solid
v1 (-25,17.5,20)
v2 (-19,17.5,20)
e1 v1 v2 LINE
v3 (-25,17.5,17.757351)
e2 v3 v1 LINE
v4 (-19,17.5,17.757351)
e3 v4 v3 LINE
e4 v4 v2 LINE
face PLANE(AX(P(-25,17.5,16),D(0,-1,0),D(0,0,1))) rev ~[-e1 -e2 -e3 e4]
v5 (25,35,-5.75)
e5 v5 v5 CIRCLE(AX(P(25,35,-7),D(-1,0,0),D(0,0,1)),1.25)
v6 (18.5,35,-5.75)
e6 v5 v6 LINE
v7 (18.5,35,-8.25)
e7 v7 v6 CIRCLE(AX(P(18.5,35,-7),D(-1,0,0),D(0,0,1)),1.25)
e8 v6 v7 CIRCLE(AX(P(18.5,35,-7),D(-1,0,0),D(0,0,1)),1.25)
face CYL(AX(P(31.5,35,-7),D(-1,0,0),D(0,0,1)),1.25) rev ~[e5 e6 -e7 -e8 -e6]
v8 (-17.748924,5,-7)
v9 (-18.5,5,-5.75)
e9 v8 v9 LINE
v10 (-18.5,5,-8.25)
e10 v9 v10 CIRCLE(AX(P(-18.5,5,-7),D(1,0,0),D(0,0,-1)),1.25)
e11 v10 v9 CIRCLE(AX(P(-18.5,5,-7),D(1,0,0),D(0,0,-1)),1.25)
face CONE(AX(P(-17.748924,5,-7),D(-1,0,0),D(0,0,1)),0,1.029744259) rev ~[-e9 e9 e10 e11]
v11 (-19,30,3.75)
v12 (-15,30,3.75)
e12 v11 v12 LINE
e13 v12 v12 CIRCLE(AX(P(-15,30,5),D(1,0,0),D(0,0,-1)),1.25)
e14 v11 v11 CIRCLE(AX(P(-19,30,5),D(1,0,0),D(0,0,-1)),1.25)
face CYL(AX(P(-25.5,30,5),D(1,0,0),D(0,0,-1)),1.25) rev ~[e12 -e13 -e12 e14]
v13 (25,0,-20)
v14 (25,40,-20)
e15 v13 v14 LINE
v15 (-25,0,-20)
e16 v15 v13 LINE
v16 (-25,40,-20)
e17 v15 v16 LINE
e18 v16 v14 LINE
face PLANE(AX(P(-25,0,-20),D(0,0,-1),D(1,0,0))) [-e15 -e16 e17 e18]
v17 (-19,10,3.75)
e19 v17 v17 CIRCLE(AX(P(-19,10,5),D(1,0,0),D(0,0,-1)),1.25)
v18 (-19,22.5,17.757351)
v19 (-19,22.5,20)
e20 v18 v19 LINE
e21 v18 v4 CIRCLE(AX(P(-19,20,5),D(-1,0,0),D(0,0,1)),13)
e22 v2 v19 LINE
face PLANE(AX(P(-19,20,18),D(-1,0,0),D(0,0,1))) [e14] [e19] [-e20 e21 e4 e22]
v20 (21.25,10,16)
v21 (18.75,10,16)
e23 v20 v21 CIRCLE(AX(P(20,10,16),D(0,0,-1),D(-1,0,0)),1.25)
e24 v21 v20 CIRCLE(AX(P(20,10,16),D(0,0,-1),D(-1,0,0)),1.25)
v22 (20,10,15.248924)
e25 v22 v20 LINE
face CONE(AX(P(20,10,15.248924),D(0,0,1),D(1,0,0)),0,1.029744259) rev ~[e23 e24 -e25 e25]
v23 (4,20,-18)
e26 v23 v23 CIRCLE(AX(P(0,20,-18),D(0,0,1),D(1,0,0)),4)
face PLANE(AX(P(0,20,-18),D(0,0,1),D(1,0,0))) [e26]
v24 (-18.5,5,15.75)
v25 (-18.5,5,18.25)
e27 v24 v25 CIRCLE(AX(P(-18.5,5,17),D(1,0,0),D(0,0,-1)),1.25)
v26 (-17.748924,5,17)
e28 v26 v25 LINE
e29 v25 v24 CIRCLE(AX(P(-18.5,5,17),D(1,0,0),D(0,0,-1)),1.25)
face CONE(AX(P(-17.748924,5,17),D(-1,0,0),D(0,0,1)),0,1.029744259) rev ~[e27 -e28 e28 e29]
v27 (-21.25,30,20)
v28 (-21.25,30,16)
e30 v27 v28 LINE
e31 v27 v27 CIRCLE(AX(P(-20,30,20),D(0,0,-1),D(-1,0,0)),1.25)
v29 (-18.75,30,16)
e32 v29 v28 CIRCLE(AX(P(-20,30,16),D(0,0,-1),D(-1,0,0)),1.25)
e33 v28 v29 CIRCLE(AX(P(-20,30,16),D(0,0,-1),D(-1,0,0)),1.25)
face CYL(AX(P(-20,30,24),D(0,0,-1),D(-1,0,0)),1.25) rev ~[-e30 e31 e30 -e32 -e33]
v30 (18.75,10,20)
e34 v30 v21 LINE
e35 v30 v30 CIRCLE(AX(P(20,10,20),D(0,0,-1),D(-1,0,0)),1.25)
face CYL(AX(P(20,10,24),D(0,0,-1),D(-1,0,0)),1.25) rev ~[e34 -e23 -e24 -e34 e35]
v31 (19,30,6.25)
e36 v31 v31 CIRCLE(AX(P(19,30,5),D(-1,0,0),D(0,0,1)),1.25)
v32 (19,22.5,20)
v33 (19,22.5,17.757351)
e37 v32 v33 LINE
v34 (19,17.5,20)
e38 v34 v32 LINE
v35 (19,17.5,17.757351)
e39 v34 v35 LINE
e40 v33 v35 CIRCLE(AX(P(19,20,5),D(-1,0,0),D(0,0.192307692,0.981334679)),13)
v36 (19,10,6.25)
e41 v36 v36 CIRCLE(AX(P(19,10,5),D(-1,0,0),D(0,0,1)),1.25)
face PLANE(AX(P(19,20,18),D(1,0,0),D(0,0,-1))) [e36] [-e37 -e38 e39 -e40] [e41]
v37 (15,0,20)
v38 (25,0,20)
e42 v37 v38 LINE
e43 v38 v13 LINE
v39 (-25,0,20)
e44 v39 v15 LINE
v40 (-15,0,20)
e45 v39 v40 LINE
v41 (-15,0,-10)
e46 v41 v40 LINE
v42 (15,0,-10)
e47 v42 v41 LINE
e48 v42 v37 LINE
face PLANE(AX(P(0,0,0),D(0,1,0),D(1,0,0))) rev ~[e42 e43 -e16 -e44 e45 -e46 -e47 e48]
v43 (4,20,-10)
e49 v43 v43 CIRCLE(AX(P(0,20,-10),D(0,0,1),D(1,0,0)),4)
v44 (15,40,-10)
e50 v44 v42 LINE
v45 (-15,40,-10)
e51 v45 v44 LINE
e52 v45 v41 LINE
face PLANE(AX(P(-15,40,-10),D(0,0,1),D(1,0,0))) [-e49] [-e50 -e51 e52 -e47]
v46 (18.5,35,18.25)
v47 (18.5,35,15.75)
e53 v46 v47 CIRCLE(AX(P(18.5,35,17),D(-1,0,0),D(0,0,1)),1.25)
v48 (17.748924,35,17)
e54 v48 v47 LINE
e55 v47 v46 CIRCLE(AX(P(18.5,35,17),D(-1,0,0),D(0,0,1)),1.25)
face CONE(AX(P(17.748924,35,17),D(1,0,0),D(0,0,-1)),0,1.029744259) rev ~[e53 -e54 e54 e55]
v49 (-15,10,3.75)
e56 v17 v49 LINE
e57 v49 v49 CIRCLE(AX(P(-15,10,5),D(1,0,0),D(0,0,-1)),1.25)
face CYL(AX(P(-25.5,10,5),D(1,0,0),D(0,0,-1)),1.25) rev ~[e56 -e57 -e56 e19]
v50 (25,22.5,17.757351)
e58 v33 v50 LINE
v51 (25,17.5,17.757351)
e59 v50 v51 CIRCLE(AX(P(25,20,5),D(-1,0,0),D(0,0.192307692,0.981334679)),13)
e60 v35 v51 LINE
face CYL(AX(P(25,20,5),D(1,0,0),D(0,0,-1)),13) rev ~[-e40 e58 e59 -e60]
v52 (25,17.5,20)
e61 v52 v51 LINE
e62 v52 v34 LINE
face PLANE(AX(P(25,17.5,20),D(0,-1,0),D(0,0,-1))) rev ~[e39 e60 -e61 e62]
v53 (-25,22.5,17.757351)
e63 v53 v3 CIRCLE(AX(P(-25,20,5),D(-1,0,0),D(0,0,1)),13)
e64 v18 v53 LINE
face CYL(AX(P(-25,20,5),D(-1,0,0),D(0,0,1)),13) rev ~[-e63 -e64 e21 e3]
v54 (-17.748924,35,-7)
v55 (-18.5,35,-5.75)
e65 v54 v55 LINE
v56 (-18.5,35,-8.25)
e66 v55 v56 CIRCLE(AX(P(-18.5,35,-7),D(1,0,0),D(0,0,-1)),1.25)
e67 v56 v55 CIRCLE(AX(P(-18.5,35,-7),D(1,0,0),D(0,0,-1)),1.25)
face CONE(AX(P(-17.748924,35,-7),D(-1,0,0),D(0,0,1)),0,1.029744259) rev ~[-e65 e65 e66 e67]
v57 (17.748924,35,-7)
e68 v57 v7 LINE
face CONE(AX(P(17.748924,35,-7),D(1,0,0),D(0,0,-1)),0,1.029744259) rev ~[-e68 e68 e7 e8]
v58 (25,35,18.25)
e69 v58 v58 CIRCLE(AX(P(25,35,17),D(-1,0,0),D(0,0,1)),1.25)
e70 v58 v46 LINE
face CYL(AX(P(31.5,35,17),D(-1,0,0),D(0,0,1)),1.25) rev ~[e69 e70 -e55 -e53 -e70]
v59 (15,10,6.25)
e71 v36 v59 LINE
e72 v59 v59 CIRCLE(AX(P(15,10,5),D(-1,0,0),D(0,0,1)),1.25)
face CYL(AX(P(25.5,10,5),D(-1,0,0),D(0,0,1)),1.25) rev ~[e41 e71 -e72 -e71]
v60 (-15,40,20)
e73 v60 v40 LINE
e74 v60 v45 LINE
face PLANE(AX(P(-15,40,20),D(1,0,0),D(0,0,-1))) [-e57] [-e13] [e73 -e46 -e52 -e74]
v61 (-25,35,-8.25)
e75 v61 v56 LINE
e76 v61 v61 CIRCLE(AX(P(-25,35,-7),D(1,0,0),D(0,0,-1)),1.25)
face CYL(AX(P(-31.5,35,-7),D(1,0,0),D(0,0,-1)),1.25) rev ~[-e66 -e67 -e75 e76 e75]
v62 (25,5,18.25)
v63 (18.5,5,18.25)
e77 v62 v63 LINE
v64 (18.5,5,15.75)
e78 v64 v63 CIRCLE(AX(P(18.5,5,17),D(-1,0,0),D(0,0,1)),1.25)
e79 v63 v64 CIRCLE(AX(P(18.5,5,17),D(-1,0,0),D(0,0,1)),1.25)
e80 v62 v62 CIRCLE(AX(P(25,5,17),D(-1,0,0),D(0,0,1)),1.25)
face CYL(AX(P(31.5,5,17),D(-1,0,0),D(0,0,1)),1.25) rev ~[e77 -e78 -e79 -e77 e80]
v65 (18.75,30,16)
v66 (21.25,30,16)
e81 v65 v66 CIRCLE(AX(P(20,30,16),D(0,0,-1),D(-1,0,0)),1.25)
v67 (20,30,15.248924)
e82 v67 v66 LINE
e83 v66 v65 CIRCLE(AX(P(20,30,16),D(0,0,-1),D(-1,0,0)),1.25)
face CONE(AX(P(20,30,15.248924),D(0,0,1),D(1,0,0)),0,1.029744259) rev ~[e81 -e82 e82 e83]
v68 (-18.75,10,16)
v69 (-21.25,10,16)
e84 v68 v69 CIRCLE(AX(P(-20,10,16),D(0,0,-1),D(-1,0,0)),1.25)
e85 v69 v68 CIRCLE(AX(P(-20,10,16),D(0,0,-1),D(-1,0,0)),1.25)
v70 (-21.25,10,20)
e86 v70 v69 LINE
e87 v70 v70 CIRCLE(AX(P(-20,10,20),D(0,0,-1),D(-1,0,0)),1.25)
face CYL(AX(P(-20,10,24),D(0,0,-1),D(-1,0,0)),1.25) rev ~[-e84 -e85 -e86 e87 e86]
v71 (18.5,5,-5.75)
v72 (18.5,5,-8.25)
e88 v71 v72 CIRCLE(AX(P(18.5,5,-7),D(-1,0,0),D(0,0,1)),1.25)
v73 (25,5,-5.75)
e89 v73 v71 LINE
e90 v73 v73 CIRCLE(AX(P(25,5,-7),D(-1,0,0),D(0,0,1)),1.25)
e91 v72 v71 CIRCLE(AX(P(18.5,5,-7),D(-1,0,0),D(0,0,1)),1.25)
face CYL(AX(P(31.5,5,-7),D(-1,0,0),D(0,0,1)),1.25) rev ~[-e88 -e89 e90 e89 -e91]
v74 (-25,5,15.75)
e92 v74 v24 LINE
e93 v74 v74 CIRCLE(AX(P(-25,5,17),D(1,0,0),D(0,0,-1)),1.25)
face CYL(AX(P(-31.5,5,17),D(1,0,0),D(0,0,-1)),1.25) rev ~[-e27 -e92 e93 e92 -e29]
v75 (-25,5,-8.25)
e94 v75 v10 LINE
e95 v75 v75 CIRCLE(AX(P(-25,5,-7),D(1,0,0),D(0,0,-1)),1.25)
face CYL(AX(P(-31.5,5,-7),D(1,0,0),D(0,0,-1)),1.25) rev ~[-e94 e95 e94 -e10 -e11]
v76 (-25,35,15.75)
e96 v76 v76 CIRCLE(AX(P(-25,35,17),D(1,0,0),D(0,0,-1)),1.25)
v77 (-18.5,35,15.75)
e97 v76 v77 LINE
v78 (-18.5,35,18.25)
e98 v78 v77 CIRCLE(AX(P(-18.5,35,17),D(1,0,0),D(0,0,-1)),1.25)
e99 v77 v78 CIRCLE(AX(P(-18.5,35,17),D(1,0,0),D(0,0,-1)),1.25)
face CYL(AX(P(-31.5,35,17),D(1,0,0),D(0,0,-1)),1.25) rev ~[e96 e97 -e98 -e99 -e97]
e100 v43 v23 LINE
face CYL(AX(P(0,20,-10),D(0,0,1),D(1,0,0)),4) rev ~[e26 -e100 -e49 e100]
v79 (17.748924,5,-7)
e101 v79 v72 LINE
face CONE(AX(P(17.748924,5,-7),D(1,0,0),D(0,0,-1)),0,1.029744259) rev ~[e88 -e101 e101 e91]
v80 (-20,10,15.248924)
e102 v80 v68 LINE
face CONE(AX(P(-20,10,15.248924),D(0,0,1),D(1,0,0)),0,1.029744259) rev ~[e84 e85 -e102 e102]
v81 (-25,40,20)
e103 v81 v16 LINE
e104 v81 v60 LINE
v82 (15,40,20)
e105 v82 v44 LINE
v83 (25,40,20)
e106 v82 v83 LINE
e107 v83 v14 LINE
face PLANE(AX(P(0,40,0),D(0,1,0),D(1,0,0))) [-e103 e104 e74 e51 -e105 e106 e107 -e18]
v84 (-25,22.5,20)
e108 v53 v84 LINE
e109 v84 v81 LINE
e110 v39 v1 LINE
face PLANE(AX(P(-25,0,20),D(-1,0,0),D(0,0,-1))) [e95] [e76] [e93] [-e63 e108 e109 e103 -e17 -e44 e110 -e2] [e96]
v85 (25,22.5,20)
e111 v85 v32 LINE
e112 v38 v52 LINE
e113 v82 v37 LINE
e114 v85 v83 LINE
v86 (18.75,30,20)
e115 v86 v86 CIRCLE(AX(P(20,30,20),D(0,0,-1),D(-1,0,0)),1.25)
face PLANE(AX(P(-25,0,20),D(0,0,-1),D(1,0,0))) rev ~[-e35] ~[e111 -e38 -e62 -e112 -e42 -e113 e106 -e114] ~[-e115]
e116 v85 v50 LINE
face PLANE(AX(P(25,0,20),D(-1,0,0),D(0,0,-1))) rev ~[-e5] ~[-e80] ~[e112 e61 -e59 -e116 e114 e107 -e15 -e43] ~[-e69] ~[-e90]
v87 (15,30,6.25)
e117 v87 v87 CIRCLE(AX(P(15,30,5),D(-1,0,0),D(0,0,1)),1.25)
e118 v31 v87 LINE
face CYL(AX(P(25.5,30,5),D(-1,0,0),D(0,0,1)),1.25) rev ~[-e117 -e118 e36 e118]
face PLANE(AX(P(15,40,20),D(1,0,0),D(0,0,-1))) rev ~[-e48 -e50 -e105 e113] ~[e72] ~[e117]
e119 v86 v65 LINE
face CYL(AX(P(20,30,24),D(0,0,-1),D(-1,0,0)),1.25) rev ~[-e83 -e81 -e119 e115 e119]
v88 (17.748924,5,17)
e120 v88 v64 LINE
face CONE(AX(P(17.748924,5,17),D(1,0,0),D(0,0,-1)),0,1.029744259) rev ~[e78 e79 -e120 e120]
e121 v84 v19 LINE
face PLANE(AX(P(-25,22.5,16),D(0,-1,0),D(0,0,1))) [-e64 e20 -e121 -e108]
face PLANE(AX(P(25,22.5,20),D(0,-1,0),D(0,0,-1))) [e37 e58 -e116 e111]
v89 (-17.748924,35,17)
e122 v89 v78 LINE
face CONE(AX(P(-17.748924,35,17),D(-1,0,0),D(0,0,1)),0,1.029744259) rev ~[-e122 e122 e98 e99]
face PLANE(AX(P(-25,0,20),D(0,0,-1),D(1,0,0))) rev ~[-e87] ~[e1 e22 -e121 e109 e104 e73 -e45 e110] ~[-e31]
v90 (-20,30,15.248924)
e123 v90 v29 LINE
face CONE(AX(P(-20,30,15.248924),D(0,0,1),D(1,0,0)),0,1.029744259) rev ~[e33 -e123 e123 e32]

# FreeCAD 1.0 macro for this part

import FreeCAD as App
import Part
import Sketcher

V = App.Vector

doc = App.newDocument("Part")
body = doc.addObject("PartDesign::Body", "Body")

sketch1 = body.newObject("Sketcher::SketchObject", "Sketch")
sketch1.AttachmentSupport = (doc.getObject("XZ_Plane"), [""])
sketch1.MapMode = "FlatFace"
sketch1.addGeometry([
    Part.LineSegment(V(-25, -20, 0), V(-25, 20, 0)),
    Part.LineSegment(V(-25, 20, 0), V(25, 20, 0)),
    Part.LineSegment(V(25, 20, 0), V(25, -20, 0)),
    Part.LineSegment(V(25, -20, 0), V(-25, -20, 0)),
], False)
sketch1.addConstraint([
    Sketcher.Constraint("Coincident", 0, 2, 1, 1),
    Sketcher.Constraint("Coincident", 1, 2, 2, 1),
    Sketcher.Constraint("Coincident", 2, 2, 3, 1),
    Sketcher.Constraint("Coincident", 3, 2, 0, 1),
    Sketcher.Constraint("Vertical", 0),
    Sketcher.Constraint("Horizontal", 1),
    Sketcher.Constraint("Vertical", 2),
    Sketcher.Constraint("Horizontal", 3),
    Sketcher.Constraint("Symmetric", 0, 2, 2, 2, -1, 1),
    Sketcher.Constraint("DistanceX", 1, 1, 1, 2, 50.0),
    Sketcher.Constraint("DistanceY", 0, 1, 0, 2, 40.0),
])
pad1 = body.newObject("PartDesign::Pad", "Pad")
pad1.Profile = sketch1
pad1.Length = 40
pad1.Reversed = True

sketch2 = body.newObject("Sketcher::SketchObject", "Sketch001")
sketch2.AttachmentSupport = (doc.getObject("XZ_Plane"), [""])
sketch2.MapMode = "FlatFace"
sketch2.AttachmentOffset = App.Placement(V(0, 0, -40), App.Rotation())
sketch2.addGeometry([
    Part.LineSegment(V(-15, -10, 0), V(-15, 20, 0)),
    Part.LineSegment(V(-15, 20, 0), V(15, 20, 0)),
    Part.LineSegment(V(15, 20, 0), V(15, -10, 0)),
    Part.LineSegment(V(15, -10, 0), V(-15, -10, 0)),
], False)
sketch2.addConstraint([
    Sketcher.Constraint("Coincident", 0, 2, 1, 1),
    Sketcher.Constraint("Coincident", 1, 2, 2, 1),
    Sketcher.Constraint("Coincident", 2, 2, 3, 1),
    Sketcher.Constraint("Coincident", 3, 2, 0, 1),
    Sketcher.Constraint("Vertical", 0),
    Sketcher.Constraint("Horizontal", 1),
    Sketcher.Constraint("Vertical", 2),
    Sketcher.Constraint("Horizontal", 3),
    Sketcher.Constraint("Equal", 3, 0),
    Sketcher.Constraint("DistanceX", 1, 1, 1, 2, 30.0),
    Sketcher.Constraint("DistanceX", 0, 2, -1, 1, 15.0),
    Sketcher.Constraint("DistanceY", -1, 1, 0, 2, 20.0),
])
pocket1 = body.newObject("PartDesign::Pocket", "Pocket")
pocket1.Profile = sketch2
pocket1.Type = "UpToFirst"
pocket1.Reversed = True

sketch3 = body.newObject("Sketcher::SketchObject", "Sketch002")
sketch3.AttachmentSupport = (doc.getObject("YZ_Plane"), [""])
sketch3.MapMode = "FlatFace"
sketch3.AttachmentOffset = App.Placement(V(0, 0, -25), App.Rotation())
sketch3.addGeometry(Part.Circle(V(20, 5, 0), V(0, 0, 1), 13), False)
sketch3.addConstraint([
    Sketcher.Constraint("Diameter", 0, 26.0),
    Sketcher.Constraint("DistanceX", -1, 1, 0, 3, 20.0),
    Sketcher.Constraint("DistanceY", -1, 1, 0, 3, 5.0),
])
pocket2 = body.newObject("PartDesign::Pocket", "Pocket001")
pocket2.Profile = sketch3
pocket2.Length = 6
pocket2.Reversed = True

sketch4 = body.newObject("Sketcher::SketchObject", "Sketch003")
sketch4.AttachmentSupport = (doc.getObject("YZ_Plane"), [""])
sketch4.MapMode = "FlatFace"
sketch4.AttachmentOffset = App.Placement(V(0, 0, 25), App.Rotation())
sketch4.addGeometry(Part.Circle(V(20, 5, 0), V(0, 0, 1), 13), False)
sketch4.addConstraint([
    Sketcher.Constraint("Diameter", 0, 26.0),
    Sketcher.Constraint("DistanceX", -1, 1, 0, 3, 20.0),
    Sketcher.Constraint("DistanceY", -1, 1, 0, 3, 5.0),
])
pocket3 = body.newObject("PartDesign::Pocket", "Pocket002")
pocket3.Profile = sketch4
pocket3.Length = 6

sketch5 = body.newObject("Sketcher::SketchObject", "Sketch004")
sketch5.AttachmentSupport = (doc.getObject("YZ_Plane"), [""])
sketch5.MapMode = "FlatFace"
sketch5.AttachmentOffset = App.Placement(V(0, 0, -19), App.Rotation())
sketch5.addGeometry([
    Part.Circle(V(30, 5, 0), V(0, 0, 1), 1.2),
    Part.Circle(V(10, 5, 0), V(0, 0, 1), 1.2),
], False)
sketch5.addConstraint([
    Sketcher.Constraint("Equal", 0, 1),
    Sketcher.Constraint("Horizontal", 0, 3, 1, 3),
    Sketcher.Constraint("Diameter", 0, 2.5),
    Sketcher.Constraint("DistanceX", -1, 1, 0, 3, 30.0),
    Sketcher.Constraint("DistanceY", -1, 1, 0, 3, 5.0),
    Sketcher.Constraint("DistanceX", -1, 1, 1, 3, 10.0),
])
doc.recompute()
hole = body.newObject("PartDesign::Hole", "Hole")
hole.Profile = sketch5
hole.ThreadType = "None"
hole.Diameter = 2.5
hole.DepthType = "Dimension"
hole.Depth = 6.5
hole.DrillPoint = "Angled"
hole.DrillPointAngle = 118
hole.Reversed = True

sketch6 = body.newObject("Sketcher::SketchObject", "Sketch005")
sketch6.AttachmentSupport = (doc.getObject("YZ_Plane"), [""])
sketch6.MapMode = "FlatFace"
sketch6.AttachmentOffset = App.Placement(V(0, 0, 19), App.Rotation())
sketch6.addGeometry([
    Part.Circle(V(30, 5, 0), V(0, 0, 1), 1.2),
    Part.Circle(V(10, 5, 0), V(0, 0, 1), 1.2),
], False)
sketch6.addConstraint([
    Sketcher.Constraint("Equal", 0, 1),
    Sketcher.Constraint("Horizontal", 0, 3, 1, 3),
    Sketcher.Constraint("Diameter", 0, 2.5),
    Sketcher.Constraint("DistanceX", -1, 1, 0, 3, 30.0),
    Sketcher.Constraint("DistanceY", -1, 1, 0, 3, 5.0),
    Sketcher.Constraint("DistanceX", -1, 1, 1, 3, 10.0),
])
doc.recompute()
hole2 = body.newObject("PartDesign::Hole", "Hole001")
hole2.Profile = sketch6
hole2.ThreadType = "None"
hole2.Diameter = 2.5
hole2.DepthType = "Dimension"
hole2.Depth = 6.5
hole2.DrillPoint = "Angled"
hole2.DrillPointAngle = 118

sketch7 = body.newObject("Sketcher::SketchObject", "Sketch006")
sketch7.AttachmentSupport = (doc.getObject("XY_Plane"), [""])
sketch7.MapMode = "FlatFace"
sketch7.AttachmentOffset = App.Placement(V(0, 0, 20), App.Rotation())
sketch7.addGeometry([
    Part.Circle(V(-20, 30, 0), V(0, 0, 1), 1.2),
    Part.Circle(V(-20, 10, 0), V(0, 0, 1), 1.2),
    Part.Circle(V(20, 10, 0), V(0, 0, 1), 1.2),
    Part.Circle(V(20, 30, 0), V(0, 0, 1), 1.2),
], False)
sketch7.addConstraint([
    Sketcher.Constraint("Equal", 0, 1),
    Sketcher.Constraint("Equal", 1, 2),
    Sketcher.Constraint("Equal", 2, 3),
    Sketcher.Constraint("Symmetric", 1, 3, 2, 3, -2),
    Sketcher.Constraint("Symmetric", 0, 3, 3, 3, -2),
    Sketcher.Constraint("Vertical", 0, 3, 1, 3),
    Sketcher.Constraint("Diameter", 0, 2.5),
    Sketcher.Constraint("DistanceX", 0, 3, -1, 1, 20.0),
    Sketcher.Constraint("DistanceY", -1, 1, 0, 3, 30.0),
    Sketcher.Constraint("DistanceY", -1, 1, 1, 3, 10.0),
])
doc.recompute()
hole3 = body.newObject("PartDesign::Hole", "Hole002")
hole3.Profile = sketch7
hole3.ThreadType = "None"
hole3.Diameter = 2.5
hole3.DepthType = "Dimension"
hole3.Depth = 4
hole3.DrillPoint = "Angled"
hole3.DrillPointAngle = 118

sketch8 = body.newObject("Sketcher::SketchObject", "Sketch007")
sketch8.AttachmentSupport = (doc.getObject("XY_Plane"), [""])
sketch8.MapMode = "FlatFace"
sketch8.AttachmentOffset = App.Placement(V(0, 0, -10), App.Rotation())
sketch8.addGeometry(Part.Circle(V(0, 20, 0), V(0, 0, 1), 4), False)
sketch8.addConstraint([
    Sketcher.Constraint("PointOnObject", 0, 3, -2),
    Sketcher.Constraint("Diameter", 0, 8.0),
    Sketcher.Constraint("DistanceY", -1, 1, 0, 3, 20.0),
])
pocket4 = body.newObject("PartDesign::Pocket", "Pocket003")
pocket4.Profile = sketch8
pocket4.Length = 8

sketch9 = body.newObject("Sketcher::SketchObject", "Sketch008")
sketch9.AttachmentSupport = (doc.getObject("YZ_Plane"), [""])
sketch9.MapMode = "FlatFace"
sketch9.AttachmentOffset = App.Placement(V(0, 0, 25), App.Rotation())
sketch9.addGeometry([
    Part.LineSegment(V(22.5, 20, 0), V(17.5, 20, 0)),
    Part.LineSegment(V(17.5, 20, 0), V(17.5, 16, 0)),
    Part.LineSegment(V(17.5, 16, 0), V(22.5, 16, 0)),
    Part.LineSegment(V(22.5, 16, 0), V(22.5, 20, 0)),
], False)
sketch9.addConstraint([
    Sketcher.Constraint("Coincident", 0, 2, 1, 1),
    Sketcher.Constraint("Coincident", 1, 2, 2, 1),
    Sketcher.Constraint("Coincident", 2, 2, 3, 1),
    Sketcher.Constraint("Coincident", 3, 2, 0, 1),
    Sketcher.Constraint("Horizontal", 0),
    Sketcher.Constraint("Vertical", 1),
    Sketcher.Constraint("Horizontal", 2),
    Sketcher.Constraint("Vertical", 3),
    Sketcher.Constraint("DistanceX", 0, 2, 0, 1, 5.0),
    Sketcher.Constraint("DistanceY", 1, 2, 1, 1, 4.0),
    Sketcher.Constraint("DistanceY", -1, 1, 0, 2, 20.0),
    Sketcher.Constraint("DistanceX", -1, 1, 0, 2, 17.5),
])
pocket5 = body.newObject("PartDesign::Pocket", "Pocket004")
pocket5.Profile = sketch9
pocket5.Length = 6

sketch10 = body.newObject("Sketcher::SketchObject", "Sketch009")
sketch10.AttachmentSupport = (doc.getObject("YZ_Plane"), [""])
sketch10.MapMode = "FlatFace"
sketch10.AttachmentOffset = App.Placement(V(0, 0, -25), App.Rotation())
sketch10.addGeometry([
    Part.LineSegment(V(22.5, 16, 0), V(17.5, 16, 0)),
    Part.LineSegment(V(17.5, 16, 0), V(17.5, 20, 0)),
    Part.LineSegment(V(17.5, 20, 0), V(22.5, 20, 0)),
    Part.LineSegment(V(22.5, 20, 0), V(22.5, 16, 0)),
], False)
sketch10.addConstraint([
    Sketcher.Constraint("Coincident", 0, 2, 1, 1),
    Sketcher.Constraint("Coincident", 1, 2, 2, 1),
    Sketcher.Constraint("Coincident", 2, 2, 3, 1),
    Sketcher.Constraint("Coincident", 3, 2, 0, 1),
    Sketcher.Constraint("Horizontal", 0),
    Sketcher.Constraint("Vertical", 1),
    Sketcher.Constraint("Horizontal", 2),
    Sketcher.Constraint("Vertical", 3),
    Sketcher.Constraint("DistanceX", 0, 2, 0, 1, 5.0),
    Sketcher.Constraint("DistanceY", 1, 1, 1, 2, 4.0),
    Sketcher.Constraint("DistanceY", -1, 1, 0, 2, 16.0),
    Sketcher.Constraint("DistanceX", -1, 1, 0, 2, 17.5),
])
pocket6 = body.newObject("PartDesign::Pocket", "Pocket005")
pocket6.Profile = sketch10
pocket6.Length = 6
pocket6.Reversed = True

sketch11 = body.newObject("Sketcher::SketchObject", "Sketch010")
sketch11.AttachmentSupport = (doc.getObject("YZ_Plane"), [""])
sketch11.MapMode = "FlatFace"
sketch11.AttachmentOffset = App.Placement(V(0, 0, -25), App.Rotation())
sketch11.addGeometry([
    Part.Circle(V(35, -7, 0), V(0, 0, 1), 1.2),
    Part.Circle(V(5, -7, 0), V(0, 0, 1), 1.2),
    Part.Circle(V(5, 17, 0), V(0, 0, 1), 1.2),
    Part.Circle(V(35, 17, 0), V(0, 0, 1), 1.2),
], False)
sketch11.addConstraint([
    Sketcher.Constraint("Equal", 0, 1),
    Sketcher.Constraint("Equal", 1, 2),
    Sketcher.Constraint("Equal", 2, 3),
    Sketcher.Constraint("Horizontal", 0, 3, 1, 3),
    Sketcher.Constraint("Horizontal", 2, 3, 3, 3),
    Sketcher.Constraint("Vertical", 1, 3, 2, 3),
    Sketcher.Constraint("Vertical", 0, 3, 3, 3),
    Sketcher.Constraint("Diameter", 0, 2.5),
    Sketcher.Constraint("DistanceX", -1, 1, 0, 3, 35.0),
    Sketcher.Constraint("DistanceY", 0, 3, -1, 1, 7.0),
    Sketcher.Constraint("DistanceX", -1, 1, 1, 3, 5.0),
    Sketcher.Constraint("DistanceY", -1, 1, 2, 3, 17.0),
])
doc.recompute()
hole4 = body.newObject("PartDesign::Hole", "Hole003")
hole4.Profile = sketch11
hole4.ThreadType = "None"
hole4.Diameter = 2.5
hole4.DepthType = "Dimension"
hole4.Depth = 6.5
hole4.DrillPoint = "Angled"
hole4.DrillPointAngle = 118
hole4.Reversed = True

sketch12 = body.newObject("Sketcher::SketchObject", "Sketch011")
sketch12.AttachmentSupport = (doc.getObject("YZ_Plane"), [""])
sketch12.MapMode = "FlatFace"
sketch12.AttachmentOffset = App.Placement(V(0, 0, 25), App.Rotation())
sketch12.addGeometry([
    Part.Circle(V(35, 17, 0), V(0, 0, 1), 1.2),
    Part.Circle(V(35, -7, 0), V(0, 0, 1), 1.2),
    Part.Circle(V(5, -7, 0), V(0, 0, 1), 1.2),
    Part.Circle(V(5, 17, 0), V(0, 0, 1), 1.2),
], False)
sketch12.addConstraint([
    Sketcher.Constraint("Equal", 0, 1),
    Sketcher.Constraint("Equal", 1, 2),
    Sketcher.Constraint("Equal", 2, 3),
    Sketcher.Constraint("Horizontal", 1, 3, 2, 3),
    Sketcher.Constraint("Horizontal", 0, 3, 3, 3),
    Sketcher.Constraint("Vertical", 0, 3, 1, 3),
    Sketcher.Constraint("Vertical", 2, 3, 3, 3),
    Sketcher.Constraint("Diameter", 0, 2.5),
    Sketcher.Constraint("DistanceX", -1, 1, 0, 3, 35.0),
    Sketcher.Constraint("DistanceY", -1, 1, 0, 3, 17.0),
    Sketcher.Constraint("DistanceY", 1, 3, -1, 1, 7.0),
    Sketcher.Constraint("DistanceX", -1, 1, 2, 3, 5.0),
])
doc.recompute()
hole5 = body.newObject("PartDesign::Hole", "Hole004")
hole5.Profile = sketch12
hole5.ThreadType = "None"
hole5.Diameter = 2.5
hole5.DepthType = "Dimension"
hole5.Depth = 6.5
hole5.DrillPoint = "Angled"
hole5.DrillPointAngle = 118

doc.recompute()
